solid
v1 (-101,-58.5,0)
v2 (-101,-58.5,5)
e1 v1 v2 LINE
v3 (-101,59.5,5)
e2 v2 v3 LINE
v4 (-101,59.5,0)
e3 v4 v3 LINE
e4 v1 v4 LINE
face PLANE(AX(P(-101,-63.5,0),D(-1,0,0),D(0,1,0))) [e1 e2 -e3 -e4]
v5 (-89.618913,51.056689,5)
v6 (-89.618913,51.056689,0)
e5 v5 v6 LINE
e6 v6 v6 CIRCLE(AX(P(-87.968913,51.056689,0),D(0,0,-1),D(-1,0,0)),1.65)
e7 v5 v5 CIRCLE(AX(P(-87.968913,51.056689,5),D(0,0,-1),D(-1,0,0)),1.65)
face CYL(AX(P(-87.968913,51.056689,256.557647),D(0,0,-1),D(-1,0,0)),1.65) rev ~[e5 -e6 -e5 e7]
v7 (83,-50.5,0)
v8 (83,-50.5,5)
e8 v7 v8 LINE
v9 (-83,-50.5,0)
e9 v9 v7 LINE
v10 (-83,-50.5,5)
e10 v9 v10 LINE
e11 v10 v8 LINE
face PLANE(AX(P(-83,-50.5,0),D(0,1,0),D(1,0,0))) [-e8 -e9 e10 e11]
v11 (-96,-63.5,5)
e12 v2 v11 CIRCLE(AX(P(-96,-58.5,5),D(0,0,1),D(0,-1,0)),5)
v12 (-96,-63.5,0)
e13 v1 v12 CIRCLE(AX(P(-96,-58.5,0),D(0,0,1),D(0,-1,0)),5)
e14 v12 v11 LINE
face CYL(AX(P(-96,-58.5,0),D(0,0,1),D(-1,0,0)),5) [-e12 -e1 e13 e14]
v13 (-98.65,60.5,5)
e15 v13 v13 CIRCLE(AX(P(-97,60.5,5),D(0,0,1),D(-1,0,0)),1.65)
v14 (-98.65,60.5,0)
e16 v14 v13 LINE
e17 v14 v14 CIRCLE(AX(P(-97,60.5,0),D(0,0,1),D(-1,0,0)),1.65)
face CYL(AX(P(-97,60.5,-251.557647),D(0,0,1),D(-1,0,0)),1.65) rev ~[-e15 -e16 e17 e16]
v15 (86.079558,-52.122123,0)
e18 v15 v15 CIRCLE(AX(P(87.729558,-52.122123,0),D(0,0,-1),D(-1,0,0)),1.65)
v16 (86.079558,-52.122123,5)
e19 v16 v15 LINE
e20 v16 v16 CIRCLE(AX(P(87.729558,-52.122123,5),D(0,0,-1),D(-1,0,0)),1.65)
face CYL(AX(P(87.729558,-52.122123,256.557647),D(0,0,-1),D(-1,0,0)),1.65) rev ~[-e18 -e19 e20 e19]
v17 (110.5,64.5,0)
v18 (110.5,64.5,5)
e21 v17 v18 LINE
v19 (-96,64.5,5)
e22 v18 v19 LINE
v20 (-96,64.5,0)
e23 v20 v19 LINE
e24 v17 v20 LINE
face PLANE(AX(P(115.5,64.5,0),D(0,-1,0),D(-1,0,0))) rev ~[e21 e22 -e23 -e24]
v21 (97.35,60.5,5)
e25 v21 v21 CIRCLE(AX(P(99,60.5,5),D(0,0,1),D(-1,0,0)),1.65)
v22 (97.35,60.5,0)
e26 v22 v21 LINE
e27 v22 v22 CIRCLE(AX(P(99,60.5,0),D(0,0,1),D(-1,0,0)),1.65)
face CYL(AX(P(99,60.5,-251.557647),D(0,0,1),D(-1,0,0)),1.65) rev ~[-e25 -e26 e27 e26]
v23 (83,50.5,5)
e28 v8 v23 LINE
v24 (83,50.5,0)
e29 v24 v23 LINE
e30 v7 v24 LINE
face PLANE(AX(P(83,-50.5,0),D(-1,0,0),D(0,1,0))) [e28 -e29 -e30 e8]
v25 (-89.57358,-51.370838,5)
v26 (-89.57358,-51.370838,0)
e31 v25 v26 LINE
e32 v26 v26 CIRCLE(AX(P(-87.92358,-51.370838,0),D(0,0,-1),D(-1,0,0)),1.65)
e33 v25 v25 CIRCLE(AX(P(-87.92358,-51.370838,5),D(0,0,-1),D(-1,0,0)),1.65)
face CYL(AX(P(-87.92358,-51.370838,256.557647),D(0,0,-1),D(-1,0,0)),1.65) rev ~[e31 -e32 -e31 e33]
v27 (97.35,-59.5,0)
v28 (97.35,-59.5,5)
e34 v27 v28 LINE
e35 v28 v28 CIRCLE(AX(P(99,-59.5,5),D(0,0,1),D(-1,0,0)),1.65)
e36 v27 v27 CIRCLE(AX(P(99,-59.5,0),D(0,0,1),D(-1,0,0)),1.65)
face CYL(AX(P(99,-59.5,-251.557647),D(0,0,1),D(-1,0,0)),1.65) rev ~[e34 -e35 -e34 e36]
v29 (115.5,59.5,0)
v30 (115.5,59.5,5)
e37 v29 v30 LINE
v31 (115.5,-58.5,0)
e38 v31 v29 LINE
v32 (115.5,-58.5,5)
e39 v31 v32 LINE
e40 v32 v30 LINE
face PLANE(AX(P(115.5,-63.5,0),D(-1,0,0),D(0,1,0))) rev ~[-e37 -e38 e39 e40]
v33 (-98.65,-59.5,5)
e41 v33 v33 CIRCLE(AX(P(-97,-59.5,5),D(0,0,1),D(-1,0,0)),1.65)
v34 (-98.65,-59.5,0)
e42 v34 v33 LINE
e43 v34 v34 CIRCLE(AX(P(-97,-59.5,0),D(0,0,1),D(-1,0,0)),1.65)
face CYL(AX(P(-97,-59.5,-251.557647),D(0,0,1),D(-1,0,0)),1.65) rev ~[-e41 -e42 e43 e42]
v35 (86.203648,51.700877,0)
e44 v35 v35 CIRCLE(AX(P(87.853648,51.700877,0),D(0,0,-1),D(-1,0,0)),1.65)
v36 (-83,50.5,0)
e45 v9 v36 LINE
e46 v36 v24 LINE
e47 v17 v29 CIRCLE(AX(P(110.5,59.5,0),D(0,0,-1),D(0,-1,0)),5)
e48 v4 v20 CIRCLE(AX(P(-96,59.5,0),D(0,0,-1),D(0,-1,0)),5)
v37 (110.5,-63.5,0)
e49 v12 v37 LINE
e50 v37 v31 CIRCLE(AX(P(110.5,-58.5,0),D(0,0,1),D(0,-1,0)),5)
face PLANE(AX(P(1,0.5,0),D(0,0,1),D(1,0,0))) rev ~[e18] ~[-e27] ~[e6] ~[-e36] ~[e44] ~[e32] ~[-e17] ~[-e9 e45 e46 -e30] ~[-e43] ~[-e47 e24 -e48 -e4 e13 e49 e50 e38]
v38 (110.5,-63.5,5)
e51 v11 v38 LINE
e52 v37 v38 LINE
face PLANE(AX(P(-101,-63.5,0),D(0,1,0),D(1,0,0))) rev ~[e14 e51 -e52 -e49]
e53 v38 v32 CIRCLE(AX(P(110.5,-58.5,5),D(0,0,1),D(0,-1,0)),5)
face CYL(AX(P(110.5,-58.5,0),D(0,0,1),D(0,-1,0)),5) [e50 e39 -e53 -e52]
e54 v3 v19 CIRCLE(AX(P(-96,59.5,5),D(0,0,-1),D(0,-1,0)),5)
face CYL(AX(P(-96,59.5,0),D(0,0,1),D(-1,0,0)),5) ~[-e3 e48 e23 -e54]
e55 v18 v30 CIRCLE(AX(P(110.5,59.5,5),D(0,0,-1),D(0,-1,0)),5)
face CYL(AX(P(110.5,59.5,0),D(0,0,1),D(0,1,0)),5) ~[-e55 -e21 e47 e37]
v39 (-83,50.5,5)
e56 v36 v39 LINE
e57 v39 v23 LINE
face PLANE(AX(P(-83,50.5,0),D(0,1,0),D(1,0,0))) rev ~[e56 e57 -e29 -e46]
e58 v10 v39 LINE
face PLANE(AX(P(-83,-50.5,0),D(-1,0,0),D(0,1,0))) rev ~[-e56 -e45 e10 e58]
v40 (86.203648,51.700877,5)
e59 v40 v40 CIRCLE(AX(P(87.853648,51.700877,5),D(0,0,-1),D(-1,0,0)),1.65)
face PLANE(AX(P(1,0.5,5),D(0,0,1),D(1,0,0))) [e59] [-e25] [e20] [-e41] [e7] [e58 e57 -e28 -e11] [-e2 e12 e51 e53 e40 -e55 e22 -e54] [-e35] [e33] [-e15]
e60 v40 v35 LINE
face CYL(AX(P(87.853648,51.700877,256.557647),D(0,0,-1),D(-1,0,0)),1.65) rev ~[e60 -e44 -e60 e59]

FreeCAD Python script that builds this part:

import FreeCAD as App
import Part
import Sketcher
from FreeCAD import Vector
Q = App.Units.Quantity


def edges_at(feature, points):
    """Names of the edges that pass closest to the given points."""
    edges = feature.Shape.Edges
    near = lambda p: min(range(len(edges)), key=lambda i: edges[i].distToShape(Part.Vertex(*p))[0])
    return sorted({f"Edge{near(p) + 1}" for p in points})


def add_polygon(sketch, points):
    """Adds a closed chain of lines whose ends are joined by coincident constraints."""
    first, n = sketch.GeometryCount, len(points)
    for a, b in zip(points, points[1:] + points[:1]):
        sketch.addGeometry(Part.LineSegment(App.Vector(*a, 0), App.Vector(*b, 0)), False)
    for i in range(n):
        sketch.addConstraint(Sketcher.Constraint("Coincident", first + i, 2, first + (i + 1) % n, 1))

doc = App.newDocument("Part")
body = doc.addObject("PartDesign::Body", "Body")

sketch1 = body.newObject("Sketcher::SketchObject", "Sketch")
sketch1.AttachmentSupport = (doc.getObject("XY_Plane"), [""])
sketch1.MapMode = "FlatFace"
add_polygon(sketch1, [(-101, 64), (-101, -64), (116, -64), (116, 64)])
add_polygon(sketch1, [(83, -50), (-83, -50), (-83, 50), (83, 50)])
sketch1.addConstraint([
    Sketcher.Constraint("Vertical", 0),
    Sketcher.Constraint("Horizontal", 1),
    Sketcher.Constraint("Vertical", 2),
    Sketcher.Constraint("Horizontal", 3),
    Sketcher.Constraint("Horizontal", 4),
    Sketcher.Constraint("Vertical", 5),
    Sketcher.Constraint("Horizontal", 6),
    Sketcher.Constraint("Vertical", 7),
    Sketcher.Constraint("Symmetric", 4, 2, 6, 2, -1, 1),
    Sketcher.Constraint("DistanceX", 4, 2, 4, 1, Q("166 mm")),
    Sketcher.Constraint("DistanceY", 0, 2, 0, 1, Q("128 mm")),
    Sketcher.Constraint("DistanceY", 5, 1, 5, 2, Q("101 mm")),
    Sketcher.Constraint("DistanceX", 1, 1, 1, 2, Q("216.5 mm")),
    Sketcher.Constraint("DistanceX", 0, 2, -1, 1, Q("101 mm")),
    Sketcher.Constraint("DistanceY", 0, 2, 4, 2, Q("13 mm")),
])
pad1 = body.newObject("PartDesign::Pad", "Pad")
pad1.Profile = sketch1
pad1.Length = 5

sketch2 = body.newObject("Sketcher::SketchObject", "Sketch001")
sketch2.AttachmentSupport = (doc.getObject("XY_Plane"), [""])
sketch2.MapMode = "FlatFace"
sketch2.addGeometry([
    Part.Circle(Vector(-97, 60.5, 0), Vector(0, 0, 1), 1.6),
    Part.Circle(Vector(99, 60.5, 0), Vector(0, 0, 1), 1.6),
    Part.Circle(Vector(99, -59.5, 0), Vector(0, 0, 1), 1.6),
    Part.Circle(Vector(-97, -59.5, 0), Vector(0, 0, 1), 1.6),
], False)
sketch2.addConstraint([
    Sketcher.Constraint("Equal", 0, 1),
    Sketcher.Constraint("Equal", 1, 2),
    Sketcher.Constraint("Equal", 2, 3),
    Sketcher.Constraint("Horizontal", 0, 3, 1, 3),
    Sketcher.Constraint("Horizontal", 2, 3, 3, 3),
    Sketcher.Constraint("Vertical", 1, 3, 2, 3),
    Sketcher.Constraint("Vertical", 0, 3, 3, 3),
    Sketcher.Constraint("Diameter", 0, Q("3.3 mm")),
    Sketcher.Constraint("DistanceX", 0, 3, -1, 1, Q("97 mm")),
    Sketcher.Constraint("DistanceX", -1, 1, 1, 3, Q("99 mm")),
    Sketcher.Constraint("DistanceY", 2, 3, 1, 3, Q("120 mm")),
    Sketcher.Constraint("DistanceY", -1, 1, 0, 3, Q("60.5 mm")),
])
doc.recompute()
hole = body.newObject("PartDesign::Hole", "Hole")
hole.Profile = sketch2
hole.ThreadType = "None"
hole.Diameter = 3.3
hole.DepthType = "ThroughAll"
hole.Reversed = True

sketch3 = body.newObject("Sketcher::SketchObject", "Sketch002")
sketch3.AttachmentSupport = (doc.getObject("XY_Plane"), [""])
sketch3.MapMode = "FlatFace"
sketch3.AttachmentOffset = App.Placement(Vector(0, 0, 5), App.Rotation())
sketch3.addGeometry([
    Part.Circle(Vector(-88, 51.1, 0), Vector(0, 0, 1), 1.6),
    Part.Circle(Vector(87.9, 51.7, 0), Vector(0, 0, 1), 1.6),
    Part.Circle(Vector(87.7, -52.1, 0), Vector(0, 0, 1), 1.6),
    Part.Circle(Vector(-87.9, -51.4, 0), Vector(0, 0, 1), 1.6),
], False)
sketch3.addConstraint([
    Sketcher.Constraint("Equal", 0, 1),
    Sketcher.Constraint("Equal", 1, 2),
    Sketcher.Constraint("Equal", 2, 3),
    Sketcher.Constraint("Diameter", 0, Q("3.3 mm")),
    Sketcher.Constraint("DistanceY", 2, 3, 1, 3, Q("103.823 mm")),
    Sketcher.Constraint("DistanceY", -1, 1, 0, 3, Q("51.056689 mm")),
    Sketcher.Constraint("DistanceX", 3, 3, -1, 1, Q("87.92358 mm")),
    Sketcher.Constraint("DistanceX", 0, 3, 1, 3, Q("175.822561 mm")),
    Sketcher.Constraint("DistanceX", 2, 3, 1, 3, Q("0.12409 mm")),
    Sketcher.Constraint("DistanceX", 0, 3, -1, 1, Q("87.968913 mm")),
    Sketcher.Constraint("DistanceY", -1, 1, 1, 3, Q("51.700877 mm")),
    Sketcher.Constraint("DistanceY", 3, 3, -1, 1, Q("51.370838 mm")),
])
doc.recompute()
hole2 = body.newObject("PartDesign::Hole", "Hole001")
hole2.Profile = sketch3
hole2.ThreadType = "None"
hole2.Diameter = 3.3
hole2.DepthType = "ThroughAll"
doc.recompute()

fillet = body.newObject("PartDesign::Fillet", "Fillet")
fillet.Base = (hole2, edges_at(hole2, [
    (-101, 64.5, 2.5),
    (115.5, 64.5, 2.5),
    (115.5, -63.5, 2.5),
    (-101, -63.5, 2.5),
]))
fillet.Radius = 5

doc.recompute()
